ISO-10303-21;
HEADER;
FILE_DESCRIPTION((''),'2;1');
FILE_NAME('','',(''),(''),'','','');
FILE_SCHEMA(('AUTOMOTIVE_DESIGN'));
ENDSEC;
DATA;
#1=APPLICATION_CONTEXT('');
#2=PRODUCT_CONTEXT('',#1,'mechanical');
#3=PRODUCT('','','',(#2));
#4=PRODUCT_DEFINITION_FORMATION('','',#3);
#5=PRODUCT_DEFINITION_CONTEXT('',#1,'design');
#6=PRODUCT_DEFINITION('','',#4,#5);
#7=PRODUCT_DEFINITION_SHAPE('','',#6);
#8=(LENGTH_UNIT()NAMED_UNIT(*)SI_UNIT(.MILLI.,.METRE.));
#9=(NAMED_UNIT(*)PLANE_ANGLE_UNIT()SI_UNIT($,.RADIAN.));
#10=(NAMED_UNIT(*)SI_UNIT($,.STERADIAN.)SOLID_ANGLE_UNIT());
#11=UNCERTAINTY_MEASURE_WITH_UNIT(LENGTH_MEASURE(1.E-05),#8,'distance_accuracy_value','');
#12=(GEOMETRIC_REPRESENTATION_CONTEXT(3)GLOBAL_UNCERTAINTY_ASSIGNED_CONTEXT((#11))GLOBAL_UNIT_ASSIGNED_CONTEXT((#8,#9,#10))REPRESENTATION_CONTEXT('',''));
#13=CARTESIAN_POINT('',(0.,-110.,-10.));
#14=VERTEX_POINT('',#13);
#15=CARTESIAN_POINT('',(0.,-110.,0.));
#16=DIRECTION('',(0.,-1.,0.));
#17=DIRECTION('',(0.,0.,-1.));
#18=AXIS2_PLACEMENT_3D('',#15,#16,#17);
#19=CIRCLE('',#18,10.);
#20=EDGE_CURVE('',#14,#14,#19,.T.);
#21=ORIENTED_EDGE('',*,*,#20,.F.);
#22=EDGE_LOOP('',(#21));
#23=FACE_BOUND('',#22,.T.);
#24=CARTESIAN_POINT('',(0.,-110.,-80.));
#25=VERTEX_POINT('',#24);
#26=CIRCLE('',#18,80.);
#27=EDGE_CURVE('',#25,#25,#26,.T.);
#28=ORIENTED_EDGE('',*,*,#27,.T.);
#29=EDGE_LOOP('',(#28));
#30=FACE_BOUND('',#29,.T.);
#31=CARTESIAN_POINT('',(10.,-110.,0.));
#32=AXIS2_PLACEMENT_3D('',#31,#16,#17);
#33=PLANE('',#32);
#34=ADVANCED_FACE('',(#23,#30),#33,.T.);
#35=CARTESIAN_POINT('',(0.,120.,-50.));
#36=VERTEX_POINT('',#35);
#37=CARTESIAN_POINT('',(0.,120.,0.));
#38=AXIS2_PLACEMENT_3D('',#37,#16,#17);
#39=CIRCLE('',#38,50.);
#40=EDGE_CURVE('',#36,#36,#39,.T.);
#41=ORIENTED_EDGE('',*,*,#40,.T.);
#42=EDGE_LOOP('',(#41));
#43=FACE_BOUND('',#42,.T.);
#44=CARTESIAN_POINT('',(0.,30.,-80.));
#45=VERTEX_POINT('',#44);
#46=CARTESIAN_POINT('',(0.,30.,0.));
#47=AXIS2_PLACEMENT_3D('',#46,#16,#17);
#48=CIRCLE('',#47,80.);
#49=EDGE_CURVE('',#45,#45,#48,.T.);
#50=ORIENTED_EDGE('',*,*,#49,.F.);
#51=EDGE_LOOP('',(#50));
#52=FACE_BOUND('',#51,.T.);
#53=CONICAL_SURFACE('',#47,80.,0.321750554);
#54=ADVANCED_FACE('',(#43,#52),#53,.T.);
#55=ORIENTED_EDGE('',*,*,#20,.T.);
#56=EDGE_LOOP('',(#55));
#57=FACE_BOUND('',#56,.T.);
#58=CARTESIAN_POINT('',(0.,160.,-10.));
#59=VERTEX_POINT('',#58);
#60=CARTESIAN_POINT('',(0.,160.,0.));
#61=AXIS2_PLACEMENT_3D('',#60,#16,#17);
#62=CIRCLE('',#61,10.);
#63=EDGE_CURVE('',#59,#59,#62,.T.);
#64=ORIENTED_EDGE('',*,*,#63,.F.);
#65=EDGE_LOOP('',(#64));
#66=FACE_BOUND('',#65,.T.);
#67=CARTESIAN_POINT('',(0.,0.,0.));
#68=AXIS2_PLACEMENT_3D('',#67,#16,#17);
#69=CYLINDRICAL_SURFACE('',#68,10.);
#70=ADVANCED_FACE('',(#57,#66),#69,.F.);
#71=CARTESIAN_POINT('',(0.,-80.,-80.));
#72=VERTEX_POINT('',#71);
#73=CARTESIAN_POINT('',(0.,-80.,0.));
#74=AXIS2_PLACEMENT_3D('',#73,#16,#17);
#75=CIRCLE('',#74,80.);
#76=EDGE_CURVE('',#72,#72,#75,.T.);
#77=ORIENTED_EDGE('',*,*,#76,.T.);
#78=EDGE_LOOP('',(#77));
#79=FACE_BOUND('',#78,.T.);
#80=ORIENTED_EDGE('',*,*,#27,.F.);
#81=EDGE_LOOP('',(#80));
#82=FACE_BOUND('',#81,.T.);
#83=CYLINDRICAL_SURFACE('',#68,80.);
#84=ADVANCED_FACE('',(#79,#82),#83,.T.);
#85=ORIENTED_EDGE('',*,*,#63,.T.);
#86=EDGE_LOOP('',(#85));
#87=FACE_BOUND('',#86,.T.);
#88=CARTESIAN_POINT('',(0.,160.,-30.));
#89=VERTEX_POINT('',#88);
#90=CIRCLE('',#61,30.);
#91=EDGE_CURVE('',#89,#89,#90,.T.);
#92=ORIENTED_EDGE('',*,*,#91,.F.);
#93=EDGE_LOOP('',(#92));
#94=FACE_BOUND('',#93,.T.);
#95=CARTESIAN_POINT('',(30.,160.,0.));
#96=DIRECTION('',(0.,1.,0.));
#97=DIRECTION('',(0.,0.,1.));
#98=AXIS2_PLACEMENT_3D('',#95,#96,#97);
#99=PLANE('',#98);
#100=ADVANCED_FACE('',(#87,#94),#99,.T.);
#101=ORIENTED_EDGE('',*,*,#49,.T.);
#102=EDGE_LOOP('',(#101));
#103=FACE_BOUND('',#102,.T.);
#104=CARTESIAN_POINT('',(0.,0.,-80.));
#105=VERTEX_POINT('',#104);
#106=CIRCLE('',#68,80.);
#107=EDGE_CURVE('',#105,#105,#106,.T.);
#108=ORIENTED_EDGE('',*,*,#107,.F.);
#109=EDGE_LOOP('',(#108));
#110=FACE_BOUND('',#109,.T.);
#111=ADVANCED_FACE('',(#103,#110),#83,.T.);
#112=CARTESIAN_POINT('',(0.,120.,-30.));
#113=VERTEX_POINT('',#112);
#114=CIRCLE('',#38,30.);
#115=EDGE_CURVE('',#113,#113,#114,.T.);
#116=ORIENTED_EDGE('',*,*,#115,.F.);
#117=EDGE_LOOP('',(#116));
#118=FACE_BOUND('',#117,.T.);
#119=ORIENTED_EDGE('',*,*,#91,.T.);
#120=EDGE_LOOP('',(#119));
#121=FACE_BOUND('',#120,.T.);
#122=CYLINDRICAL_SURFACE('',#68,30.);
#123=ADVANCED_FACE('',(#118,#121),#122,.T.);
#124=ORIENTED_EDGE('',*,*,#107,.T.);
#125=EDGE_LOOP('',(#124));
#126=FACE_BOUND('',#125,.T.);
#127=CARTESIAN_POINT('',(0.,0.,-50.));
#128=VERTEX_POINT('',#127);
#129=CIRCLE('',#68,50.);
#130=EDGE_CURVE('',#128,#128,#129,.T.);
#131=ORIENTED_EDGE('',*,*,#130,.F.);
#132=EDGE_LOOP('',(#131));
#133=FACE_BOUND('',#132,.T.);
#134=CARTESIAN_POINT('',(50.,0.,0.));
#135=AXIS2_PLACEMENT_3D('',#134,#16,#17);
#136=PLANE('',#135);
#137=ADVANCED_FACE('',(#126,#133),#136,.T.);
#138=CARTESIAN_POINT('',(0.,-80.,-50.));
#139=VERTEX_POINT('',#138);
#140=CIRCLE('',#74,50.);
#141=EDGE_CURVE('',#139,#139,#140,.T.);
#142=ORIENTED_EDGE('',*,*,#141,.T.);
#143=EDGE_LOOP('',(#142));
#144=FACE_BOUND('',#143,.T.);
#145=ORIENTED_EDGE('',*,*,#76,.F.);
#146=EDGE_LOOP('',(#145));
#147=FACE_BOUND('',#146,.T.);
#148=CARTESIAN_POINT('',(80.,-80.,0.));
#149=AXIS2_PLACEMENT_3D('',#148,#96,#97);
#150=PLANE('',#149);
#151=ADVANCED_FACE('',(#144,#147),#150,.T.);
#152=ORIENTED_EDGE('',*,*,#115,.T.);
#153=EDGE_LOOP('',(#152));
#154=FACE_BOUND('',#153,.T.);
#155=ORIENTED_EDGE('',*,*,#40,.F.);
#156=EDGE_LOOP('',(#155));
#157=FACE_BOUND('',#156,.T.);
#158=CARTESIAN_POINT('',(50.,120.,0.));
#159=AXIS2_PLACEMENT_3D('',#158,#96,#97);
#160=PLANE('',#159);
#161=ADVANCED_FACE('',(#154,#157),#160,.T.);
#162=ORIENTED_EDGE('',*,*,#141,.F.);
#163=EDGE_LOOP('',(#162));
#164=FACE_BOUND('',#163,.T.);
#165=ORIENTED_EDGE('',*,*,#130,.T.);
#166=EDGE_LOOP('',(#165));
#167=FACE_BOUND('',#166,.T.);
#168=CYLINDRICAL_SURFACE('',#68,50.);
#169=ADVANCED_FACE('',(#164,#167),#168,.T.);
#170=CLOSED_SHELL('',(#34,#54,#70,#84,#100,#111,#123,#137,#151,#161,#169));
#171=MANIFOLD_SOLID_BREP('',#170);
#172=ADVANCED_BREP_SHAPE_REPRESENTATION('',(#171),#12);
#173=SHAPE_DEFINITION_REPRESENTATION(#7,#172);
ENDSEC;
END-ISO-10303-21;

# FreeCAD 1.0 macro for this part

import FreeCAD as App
import Part
import Sketcher

doc = App.newDocument("Part")
params = doc.addObject("Spreadsheet::Sheet", "Params")
for row, (alias, value) in enumerate([
    ("sketch1_width", "70 mm"),
    ("sketch1_width2", "30 mm"),
    ("sketch1_height", "80 mm"),
    ("sketch1_height2", "40 mm"),
    ("sketch1_height3", "270 mm"),
    ("revolution_angle", "360 deg"),
], start=1):
    params.set(f"A{row}", alias)
    params.set(f"B{row}", "=" + value)
    params.setAlias(f"B{row}", alias)

body = doc.addObject("PartDesign::Body", "Body")

sketch1 = body.newObject("Sketcher::SketchObject", "Sketch")
sketch1.AttachmentSupport = (doc.getObject("XY_Plane"), [""])
sketch1.MapMode = "FlatFace"
sketch1.addGeometry([
    Part.LineSegment(App.Vector(10, -110, 0), App.Vector(80, -110, 0)),
    Part.LineSegment(App.Vector(80, -110, 0), App.Vector(80, -80, 0)),
    Part.LineSegment(App.Vector(80, -80, 0), App.Vector(50, -80, 0)),
    Part.LineSegment(App.Vector(50, -80, 0), App.Vector(50, 0, 0)),
    Part.LineSegment(App.Vector(50, 0, 0), App.Vector(80, 0, 0)),
    Part.LineSegment(App.Vector(80, 0, 0), App.Vector(80, 30, 0)),
    Part.LineSegment(App.Vector(80, 30, 0), App.Vector(50, 120, 0)),
    Part.LineSegment(App.Vector(50, 120, 0), App.Vector(30, 120, 0)),
    Part.LineSegment(App.Vector(30, 120, 0), App.Vector(30, 160, 0)),
    Part.LineSegment(App.Vector(30, 160, 0), App.Vector(10, 160, 0)),
    Part.LineSegment(App.Vector(10, 160, 0), App.Vector(10, -110, 0)),
], False)
sketch1.addConstraint([
    Sketcher.Constraint("Coincident", 0, 2, 1, 1),
    Sketcher.Constraint("Coincident", 1, 2, 2, 1),
    Sketcher.Constraint("Coincident", 2, 2, 3, 1),
    Sketcher.Constraint("Coincident", 3, 2, 4, 1),
    Sketcher.Constraint("Coincident", 4, 2, 5, 1),
    Sketcher.Constraint("Coincident", 5, 2, 6, 1),
    Sketcher.Constraint("Coincident", 6, 2, 7, 1),
    Sketcher.Constraint("Coincident", 7, 2, 8, 1),
    Sketcher.Constraint("Coincident", 8, 2, 9, 1),
    Sketcher.Constraint("Coincident", 9, 2, 10, 1),
    Sketcher.Constraint("Coincident", 10, 2, 0, 1),
    Sketcher.Constraint("Horizontal", 0),
    Sketcher.Constraint("Vertical", 1),
    Sketcher.Constraint("Horizontal", 2),
    Sketcher.Constraint("Vertical", 3),
    Sketcher.Constraint("Horizontal", 4),
    Sketcher.Constraint("Vertical", 5),
    Sketcher.Constraint("Horizontal", 7),
    Sketcher.Constraint("Vertical", 8),
    Sketcher.Constraint("Horizontal", 9),
    Sketcher.Constraint("Vertical", 10),
    Sketcher.Constraint("PointOnObject", 3, 2, -1),
    Sketcher.Constraint("Vertical", 1, 2, 4, 2),
    Sketcher.Constraint("Vertical", 3, 2, 6, 2),
    Sketcher.Constraint("Equal", 7, 9),
    Sketcher.Constraint("Equal", 4, 1),
    Sketcher.Constraint("Equal", 1, 5),
    Sketcher.Constraint("DistanceX", 0, 1, 0, 2, 70.0),
    Sketcher.Constraint("DistanceX", 2, 2, 2, 1, 30.0),
    Sketcher.Constraint("DistanceY", 3, 1, 3, 2, 80.0),
    Sketcher.Constraint("DistanceY", 8, 1, 8, 2, 40.0),
    Sketcher.Constraint("DistanceY", 10, 2, 10, 1, 270.0),
    Sketcher.Constraint("DistanceX", -1, 1, 0, 2, 80.0),
])
sketch1.setExpression("Constraints[27]", "Params.sketch1_width")
sketch1.setExpression("Constraints[28]", "Params.sketch1_width2")
sketch1.setExpression("Constraints[29]", "Params.sketch1_height")
sketch1.setExpression("Constraints[30]", "Params.sketch1_height2")
sketch1.setExpression("Constraints[31]", "Params.sketch1_height3")
revolution = body.newObject("PartDesign::Revolution", "Revolution")
revolution.Profile = sketch1
revolution.ReferenceAxis = (sketch1, ["V_Axis"])
revolution.setExpression("Angle", "Params.revolution_angle")

doc.recompute()
